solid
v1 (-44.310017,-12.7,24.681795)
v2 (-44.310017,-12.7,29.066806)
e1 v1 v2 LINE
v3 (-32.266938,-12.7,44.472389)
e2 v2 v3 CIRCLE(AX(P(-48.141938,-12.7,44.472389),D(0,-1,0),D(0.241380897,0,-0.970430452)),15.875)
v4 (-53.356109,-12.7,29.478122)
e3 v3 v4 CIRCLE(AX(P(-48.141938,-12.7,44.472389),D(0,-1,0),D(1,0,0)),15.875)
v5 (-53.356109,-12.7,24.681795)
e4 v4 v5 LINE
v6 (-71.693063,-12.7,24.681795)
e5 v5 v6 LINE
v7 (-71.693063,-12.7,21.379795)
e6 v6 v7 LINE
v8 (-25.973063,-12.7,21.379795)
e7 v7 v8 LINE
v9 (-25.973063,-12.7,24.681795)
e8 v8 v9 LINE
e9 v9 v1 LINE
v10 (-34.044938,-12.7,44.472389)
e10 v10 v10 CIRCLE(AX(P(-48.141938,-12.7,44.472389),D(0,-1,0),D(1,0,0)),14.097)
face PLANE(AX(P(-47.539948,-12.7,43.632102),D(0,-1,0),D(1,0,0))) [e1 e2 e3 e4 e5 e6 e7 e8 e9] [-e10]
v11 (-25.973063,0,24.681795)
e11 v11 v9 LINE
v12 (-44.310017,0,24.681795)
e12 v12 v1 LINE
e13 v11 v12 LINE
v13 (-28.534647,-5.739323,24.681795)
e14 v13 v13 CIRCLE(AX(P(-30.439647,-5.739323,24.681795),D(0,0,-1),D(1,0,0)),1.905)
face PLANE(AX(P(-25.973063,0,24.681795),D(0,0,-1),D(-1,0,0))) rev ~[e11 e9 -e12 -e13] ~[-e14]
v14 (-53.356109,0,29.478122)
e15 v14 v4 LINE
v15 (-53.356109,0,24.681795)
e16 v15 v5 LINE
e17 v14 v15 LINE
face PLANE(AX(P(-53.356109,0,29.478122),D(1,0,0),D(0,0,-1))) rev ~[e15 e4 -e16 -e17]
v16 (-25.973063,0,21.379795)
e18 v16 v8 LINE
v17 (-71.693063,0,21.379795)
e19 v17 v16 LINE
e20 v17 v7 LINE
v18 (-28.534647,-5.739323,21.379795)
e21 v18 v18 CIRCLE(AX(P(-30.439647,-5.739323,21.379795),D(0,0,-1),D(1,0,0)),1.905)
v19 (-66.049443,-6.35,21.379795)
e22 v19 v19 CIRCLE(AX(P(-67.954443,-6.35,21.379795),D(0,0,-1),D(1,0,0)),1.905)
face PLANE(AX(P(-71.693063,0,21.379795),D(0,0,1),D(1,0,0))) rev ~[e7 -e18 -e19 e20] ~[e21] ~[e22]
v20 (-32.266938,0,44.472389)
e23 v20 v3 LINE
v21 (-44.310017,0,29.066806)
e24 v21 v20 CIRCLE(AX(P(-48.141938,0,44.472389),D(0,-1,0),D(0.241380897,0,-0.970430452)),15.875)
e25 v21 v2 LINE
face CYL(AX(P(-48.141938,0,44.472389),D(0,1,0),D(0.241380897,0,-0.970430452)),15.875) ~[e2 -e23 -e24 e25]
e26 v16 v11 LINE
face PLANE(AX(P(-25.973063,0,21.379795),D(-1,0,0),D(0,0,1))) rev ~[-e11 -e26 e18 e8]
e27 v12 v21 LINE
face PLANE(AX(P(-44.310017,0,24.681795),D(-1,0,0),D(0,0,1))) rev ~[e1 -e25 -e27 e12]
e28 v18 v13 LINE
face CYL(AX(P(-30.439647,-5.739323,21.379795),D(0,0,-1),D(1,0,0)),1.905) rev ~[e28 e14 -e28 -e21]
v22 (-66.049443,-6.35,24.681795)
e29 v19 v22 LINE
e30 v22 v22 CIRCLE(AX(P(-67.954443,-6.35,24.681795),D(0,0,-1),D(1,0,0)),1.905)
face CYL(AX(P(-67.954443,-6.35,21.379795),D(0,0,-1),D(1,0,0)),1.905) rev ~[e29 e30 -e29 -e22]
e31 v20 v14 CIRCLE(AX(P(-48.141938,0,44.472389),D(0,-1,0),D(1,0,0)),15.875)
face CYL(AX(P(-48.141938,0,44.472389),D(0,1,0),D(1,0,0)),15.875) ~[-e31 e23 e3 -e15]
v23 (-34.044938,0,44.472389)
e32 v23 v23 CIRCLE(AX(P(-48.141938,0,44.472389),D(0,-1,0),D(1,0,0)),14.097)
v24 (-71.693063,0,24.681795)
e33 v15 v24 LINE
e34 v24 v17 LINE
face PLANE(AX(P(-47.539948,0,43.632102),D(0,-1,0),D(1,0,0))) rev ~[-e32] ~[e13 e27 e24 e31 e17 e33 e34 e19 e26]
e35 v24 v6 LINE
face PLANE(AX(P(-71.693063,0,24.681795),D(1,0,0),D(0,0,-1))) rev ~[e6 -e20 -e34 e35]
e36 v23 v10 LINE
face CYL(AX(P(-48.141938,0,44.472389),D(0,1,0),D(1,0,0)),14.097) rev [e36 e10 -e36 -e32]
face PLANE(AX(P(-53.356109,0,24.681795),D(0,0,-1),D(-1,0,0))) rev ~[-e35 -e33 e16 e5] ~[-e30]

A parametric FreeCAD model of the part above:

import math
import FreeCAD as App
import Part
import Sketcher
Q = App.Units.Quantity

doc = App.newDocument("Part")
params = doc.addObject("Spreadsheet::Sheet", "Params")
for row, (alias, value) in enumerate([
    ("sketch1_diameter", "1.11 in"),
    ("sketch1_width", "1.8 in"),
    ("sketch1_radius", "0.625 in"),
    ("sketch1_height", "0.13 in"),
    ("pad1_length", "0.5 in"),
    ("sketch2_diameter", "0.15 in"),
    ("pocket1_length", "0.39 in"),
], start=1):
    params.set(f"A{row}", alias)
    params.set(f"B{row}", "=" + value)
    params.setAlias(f"B{row}", alias)

body = doc.addObject("PartDesign::Body", "Body")

sketch1 = body.newObject("Sketcher::SketchObject", "Sketch")
sketch1.AttachmentSupport = (doc.getObject("XZ_Plane"), [""])
sketch1.MapMode = "FlatFace"
sketch1.addGeometry([
    Part.ArcOfCircle(Part.Circle(App.Vector(-48.1, 44.5, 0), App.Vector(0, 0, 1), 15.9), math.radians(-76), math.radians(0)),
    Part.ArcOfCircle(Part.Circle(App.Vector(-48.1, 44.5, 0), App.Vector(0, 0, 1), 15.9), math.radians(0), math.radians(251)),
    Part.LineSegment(App.Vector(-53.4, 29.5, 0), App.Vector(-53.4, 24.7, 0)),
    Part.LineSegment(App.Vector(-53.4, 24.7, 0), App.Vector(-71.7, 24.7, 0)),
    Part.LineSegment(App.Vector(-71.7, 24.7, 0), App.Vector(-71.7, 21.4, 0)),
    Part.LineSegment(App.Vector(-71.7, 21.4, 0), App.Vector(-26, 21.4, 0)),
    Part.LineSegment(App.Vector(-26, 21.4, 0), App.Vector(-26, 24.7, 0)),
    Part.LineSegment(App.Vector(-26, 24.7, 0), App.Vector(-44.3, 24.7, 0)),
    Part.LineSegment(App.Vector(-44.3, 24.7, 0), App.Vector(-44.3, 29.1, 0)),
    Part.Circle(App.Vector(-48.1, 44.5, 0), App.Vector(0, 0, 1), 14.1),
], False)
sketch1.addConstraint([
    Sketcher.Constraint("Tangent", 0, 2, 1, 1),
    Sketcher.Constraint("Coincident", 1, 2, 2, 1),
    Sketcher.Constraint("Coincident", 2, 2, 3, 1),
    Sketcher.Constraint("Coincident", 3, 2, 4, 1),
    Sketcher.Constraint("Coincident", 4, 2, 5, 1),
    Sketcher.Constraint("Coincident", 5, 2, 6, 1),
    Sketcher.Constraint("Coincident", 6, 2, 7, 1),
    Sketcher.Constraint("Coincident", 7, 2, 8, 1),
    Sketcher.Constraint("Coincident", 8, 2, 0, 1),
    Sketcher.Constraint("Vertical", 2),
    Sketcher.Constraint("Horizontal", 3),
    Sketcher.Constraint("Vertical", 4),
    Sketcher.Constraint("Horizontal", 5),
    Sketcher.Constraint("Vertical", 6),
    Sketcher.Constraint("Horizontal", 7),
    Sketcher.Constraint("Vertical", 8),
    Sketcher.Constraint("Coincident", 9, 3, 0, 3),
    Sketcher.Constraint("Equal", 0, 1),
    Sketcher.Constraint("Horizontal", 9, 3, 0, 2),
    Sketcher.Constraint("Horizontal", 3, 2, 6, 2),
    Sketcher.Constraint("Equal", 3, 7),
    Sketcher.Constraint("Diameter", 9, Q("1.11 in")),
    Sketcher.Constraint("DistanceX", 5, 1, 5, 2, Q("1.8 in")),
    Sketcher.Constraint("Radius", 0, Q("0.625 in")),
    Sketcher.Constraint("DistanceY", 4, 2, 4, 1, Q("0.13 in")),
    Sketcher.Constraint("DistanceY", 8, 1, 8, 2, 4.385011),
    Sketcher.Constraint("DistanceX", 3, 2, 3, 1, 18.336954),
    Sketcher.Constraint("DistanceY", 2, 2, 2, 1, 4.796327),
    Sketcher.Constraint("DistanceX", 0, 3, -1, 1, 48.141938),
    Sketcher.Constraint("DistanceY", -1, 1, 0, 3, 44.472389),
])
sketch1.setExpression("Constraints[21]", "Params.sketch1_diameter")
sketch1.setExpression("Constraints[22]", "Params.sketch1_width")
sketch1.setExpression("Constraints[23]", "Params.sketch1_radius")
sketch1.setExpression("Constraints[24]", "Params.sketch1_height")
pad1 = body.newObject("PartDesign::Pad", "Pad")
pad1.Profile = sketch1
pad1.setExpression("Length", "Params.pad1_length")

sketch2 = body.newObject("Sketcher::SketchObject", "Sketch001")
sketch2.AttachmentSupport = (doc.getObject("XY_Plane"), [""])
sketch2.MapMode = "FlatFace"
sketch2.AttachmentOffset = App.Placement(App.Vector(0, 0, 21.379795), App.Rotation())
sketch2.addGeometry([
    Part.Circle(App.Vector(-68, -6.3, 0), App.Vector(0, 0, 1), 1.9),
    Part.Circle(App.Vector(-30.4, -5.7, 0), App.Vector(0, 0, 1), 1.9),
], False)
sketch2.addConstraint([
    Sketcher.Constraint("Equal", 0, 1),
    Sketcher.Constraint("Diameter", 0, Q("0.15 in")),
    Sketcher.Constraint("DistanceY", 0, 3, -1, 1, Q("0.25 in")),
    Sketcher.Constraint("DistanceX", 0, 3, -1, 1, 67.954443),
    Sketcher.Constraint("DistanceX", 1, 3, -1, 1, 30.439647),
    Sketcher.Constraint("DistanceY", 1, 3, -1, 1, 5.739323),
])
sketch2.setExpression("Constraints[1]", "Params.sketch2_diameter")
pocket1 = body.newObject("PartDesign::Pocket", "Pocket")
pocket1.Profile = sketch2
pocket1.setExpression("Length", "Params.pocket1_length")
pocket1.Reversed = True

doc.recompute()
